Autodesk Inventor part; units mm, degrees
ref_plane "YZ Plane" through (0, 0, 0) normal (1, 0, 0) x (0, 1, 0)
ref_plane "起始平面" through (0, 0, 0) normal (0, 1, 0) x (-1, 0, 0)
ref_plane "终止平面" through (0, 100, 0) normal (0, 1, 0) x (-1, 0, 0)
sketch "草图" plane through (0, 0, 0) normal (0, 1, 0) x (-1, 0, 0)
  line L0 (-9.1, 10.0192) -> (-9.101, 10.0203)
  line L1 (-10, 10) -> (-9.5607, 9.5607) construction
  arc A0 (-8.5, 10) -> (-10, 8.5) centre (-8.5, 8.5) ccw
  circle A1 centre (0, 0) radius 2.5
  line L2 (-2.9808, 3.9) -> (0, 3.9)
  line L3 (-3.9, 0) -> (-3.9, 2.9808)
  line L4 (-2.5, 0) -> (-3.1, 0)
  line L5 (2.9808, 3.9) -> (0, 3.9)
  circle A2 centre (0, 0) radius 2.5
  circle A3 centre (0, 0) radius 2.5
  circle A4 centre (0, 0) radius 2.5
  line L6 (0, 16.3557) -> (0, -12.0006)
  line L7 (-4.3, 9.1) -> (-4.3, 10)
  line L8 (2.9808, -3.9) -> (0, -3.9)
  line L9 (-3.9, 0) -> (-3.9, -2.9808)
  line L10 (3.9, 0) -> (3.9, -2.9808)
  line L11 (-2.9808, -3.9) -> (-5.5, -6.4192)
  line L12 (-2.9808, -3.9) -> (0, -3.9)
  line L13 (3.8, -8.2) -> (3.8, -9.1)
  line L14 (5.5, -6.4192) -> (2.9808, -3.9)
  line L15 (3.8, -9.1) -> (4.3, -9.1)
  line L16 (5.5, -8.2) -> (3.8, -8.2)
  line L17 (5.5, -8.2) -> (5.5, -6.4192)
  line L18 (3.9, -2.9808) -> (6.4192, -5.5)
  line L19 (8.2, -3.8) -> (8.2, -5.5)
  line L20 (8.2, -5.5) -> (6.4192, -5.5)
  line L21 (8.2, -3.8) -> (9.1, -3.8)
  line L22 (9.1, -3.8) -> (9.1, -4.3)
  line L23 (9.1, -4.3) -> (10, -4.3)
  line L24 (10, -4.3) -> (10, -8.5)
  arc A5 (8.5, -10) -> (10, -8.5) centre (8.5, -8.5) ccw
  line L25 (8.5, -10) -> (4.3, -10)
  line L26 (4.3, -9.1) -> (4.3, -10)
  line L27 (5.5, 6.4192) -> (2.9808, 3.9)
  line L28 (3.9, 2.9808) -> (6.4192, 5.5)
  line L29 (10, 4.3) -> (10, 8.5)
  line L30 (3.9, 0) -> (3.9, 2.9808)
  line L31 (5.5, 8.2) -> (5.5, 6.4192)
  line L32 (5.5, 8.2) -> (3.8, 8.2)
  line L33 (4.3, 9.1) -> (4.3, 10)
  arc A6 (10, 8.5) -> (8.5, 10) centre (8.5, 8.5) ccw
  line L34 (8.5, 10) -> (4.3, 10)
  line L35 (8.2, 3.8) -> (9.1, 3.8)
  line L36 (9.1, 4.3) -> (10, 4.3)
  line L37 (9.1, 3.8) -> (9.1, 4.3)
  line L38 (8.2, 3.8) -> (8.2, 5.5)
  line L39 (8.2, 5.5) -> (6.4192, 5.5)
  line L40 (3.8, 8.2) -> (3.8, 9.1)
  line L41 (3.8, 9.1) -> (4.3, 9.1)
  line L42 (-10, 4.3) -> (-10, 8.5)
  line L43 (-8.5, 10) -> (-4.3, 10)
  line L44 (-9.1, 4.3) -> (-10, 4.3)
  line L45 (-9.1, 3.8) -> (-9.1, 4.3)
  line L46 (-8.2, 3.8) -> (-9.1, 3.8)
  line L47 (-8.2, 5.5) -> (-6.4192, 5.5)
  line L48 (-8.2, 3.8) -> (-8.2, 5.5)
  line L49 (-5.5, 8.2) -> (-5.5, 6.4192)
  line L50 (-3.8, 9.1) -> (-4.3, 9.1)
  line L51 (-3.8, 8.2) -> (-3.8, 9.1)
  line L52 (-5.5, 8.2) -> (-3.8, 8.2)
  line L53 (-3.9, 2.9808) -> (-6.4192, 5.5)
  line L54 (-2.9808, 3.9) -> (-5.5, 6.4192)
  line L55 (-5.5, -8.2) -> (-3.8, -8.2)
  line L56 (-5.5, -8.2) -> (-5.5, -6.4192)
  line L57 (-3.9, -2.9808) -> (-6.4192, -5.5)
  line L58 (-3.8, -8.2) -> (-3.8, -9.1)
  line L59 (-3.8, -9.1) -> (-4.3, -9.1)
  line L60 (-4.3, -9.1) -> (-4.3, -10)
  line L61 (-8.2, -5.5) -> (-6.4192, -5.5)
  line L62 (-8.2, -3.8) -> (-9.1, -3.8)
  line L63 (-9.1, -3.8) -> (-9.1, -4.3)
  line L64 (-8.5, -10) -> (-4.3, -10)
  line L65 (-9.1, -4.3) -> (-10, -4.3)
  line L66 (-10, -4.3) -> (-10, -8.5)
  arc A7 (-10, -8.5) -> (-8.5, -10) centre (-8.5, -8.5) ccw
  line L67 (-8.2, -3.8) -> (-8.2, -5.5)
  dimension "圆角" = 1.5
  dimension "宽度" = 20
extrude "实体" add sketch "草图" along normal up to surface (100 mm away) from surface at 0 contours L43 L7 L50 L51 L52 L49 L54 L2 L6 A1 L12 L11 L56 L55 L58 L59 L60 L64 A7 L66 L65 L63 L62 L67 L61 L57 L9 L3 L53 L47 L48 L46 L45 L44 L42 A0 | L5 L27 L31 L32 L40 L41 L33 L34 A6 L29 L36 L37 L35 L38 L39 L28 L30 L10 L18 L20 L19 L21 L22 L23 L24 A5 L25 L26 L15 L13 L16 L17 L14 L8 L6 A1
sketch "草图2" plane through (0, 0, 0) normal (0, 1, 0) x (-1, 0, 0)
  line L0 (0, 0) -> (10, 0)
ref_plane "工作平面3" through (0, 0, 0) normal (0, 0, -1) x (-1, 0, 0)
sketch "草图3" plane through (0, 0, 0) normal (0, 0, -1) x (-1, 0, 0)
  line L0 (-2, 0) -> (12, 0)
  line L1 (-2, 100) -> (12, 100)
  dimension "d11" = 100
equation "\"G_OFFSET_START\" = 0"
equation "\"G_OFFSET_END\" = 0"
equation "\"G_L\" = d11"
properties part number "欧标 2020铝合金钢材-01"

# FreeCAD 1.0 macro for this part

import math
import FreeCAD as App
import Part
import Sketcher

V = App.Vector

doc = App.newDocument("Part")
body = doc.addObject("PartDesign::Body", "Body")

# Sketch on XZ plane
sketch1 = body.newObject("Sketcher::SketchObject", "Sketch")
sketch1.AttachmentSupport = (doc.getObject("XZ_Plane"), [""])
sketch1.MapMode = "FlatFace"
sketch1.addGeometry([
    Part.LineSegment(V(4.3, 10, 0), V(8.5, 10, 0)),  # 0
    Part.ArcOfCircle(Part.Circle(V(8.5, 8.5, 0), V(0, 0, 1), 1.5), math.radians(0), math.radians(90)),  # 1
    Part.LineSegment(V(10, 8.5, 0), V(10, 4.3, 0)),  # 2
    Part.LineSegment(V(10, 4.3, 0), V(9.1, 4.3, 0)),  # 3
    Part.LineSegment(V(9.1, 4.3, 0), V(9.1, 3.8, 0)),  # 4
    Part.LineSegment(V(9.1, 3.8, 0), V(8.2, 3.8, 0)),  # 5
    Part.LineSegment(V(8.2, 3.8, 0), V(8.2, 5.5, 0)),  # 6
    Part.LineSegment(V(8.2, 5.5, 0), V(6.4192, 5.5, 0)),  # 7
    Part.LineSegment(V(6.4192, 5.5, 0), V(3.9, 2.9808, 0)),  # 8
    Part.LineSegment(V(3.9, 2.9808, 0), V(3.9, -2.9808, 0)),  # 9
    Part.LineSegment(V(3.9, -2.9808, 0), V(6.4192, -5.5, 0)),  # 10
    Part.LineSegment(V(6.4192, -5.5, 0), V(8.2, -5.5, 0)),  # 11
    Part.LineSegment(V(8.2, -5.5, 0), V(8.2, -3.8, 0)),  # 12
    Part.LineSegment(V(8.2, -3.8, 0), V(9.1, -3.8, 0)),  # 13
    Part.LineSegment(V(9.1, -3.8, 0), V(9.1, -4.3, 0)),  # 14
    Part.LineSegment(V(9.1, -4.3, 0), V(10, -4.3, 0)),  # 15
    Part.LineSegment(V(10, -4.3, 0), V(10, -8.5, 0)),  # 16
    Part.ArcOfCircle(Part.Circle(V(8.5, -8.5, 0), V(0, 0, 1), 1.5), math.radians(-90), math.radians(0)),  # 17
    Part.LineSegment(V(8.5, -10, 0), V(4.3, -10, 0)),  # 18
    Part.LineSegment(V(4.3, -10, 0), V(4.3, -9.1, 0)),  # 19
    Part.LineSegment(V(4.3, -9.1, 0), V(3.8, -9.1, 0)),  # 20
    Part.LineSegment(V(3.8, -9.1, 0), V(3.8, -8.2, 0)),  # 21
    Part.LineSegment(V(3.8, -8.2, 0), V(5.5, -8.2, 0)),  # 22
    Part.LineSegment(V(5.5, -8.2, 0), V(5.5, -6.4192, 0)),  # 23
    Part.LineSegment(V(5.5, -6.4192, 0), V(2.9808, -3.9, 0)),  # 24
    Part.LineSegment(V(2.9808, -3.9, 0), V(-2.9808, -3.9, 0)),  # 25
    Part.LineSegment(V(-2.9808, -3.9, 0), V(-5.5, -6.4192, 0)),  # 26
    Part.LineSegment(V(-5.5, -6.4192, 0), V(-5.5, -8.2, 0)),  # 27
    Part.LineSegment(V(-5.5, -8.2, 0), V(-3.8, -8.2, 0)),  # 28
    Part.LineSegment(V(-3.8, -8.2, 0), V(-3.8, -9.1, 0)),  # 29
    Part.LineSegment(V(-3.8, -9.1, 0), V(-4.3, -9.1, 0)),  # 30
    Part.LineSegment(V(-4.3, -9.1, 0), V(-4.3, -10, 0)),  # 31
    Part.LineSegment(V(-4.3, -10, 0), V(-8.5, -10, 0)),  # 32
    Part.ArcOfCircle(Part.Circle(V(-8.5, -8.5, 0), V(0, 0, 1), 1.5), math.radians(180), math.radians(270)),  # 33
    Part.LineSegment(V(-10, -8.5, 0), V(-10, -4.3, 0)),  # 34
    Part.LineSegment(V(-10, -4.3, 0), V(-9.1, -4.3, 0)),  # 35
    Part.LineSegment(V(-9.1, -4.3, 0), V(-9.1, -3.8, 0)),  # 36
    Part.LineSegment(V(-9.1, -3.8, 0), V(-8.2, -3.8, 0)),  # 37
    Part.LineSegment(V(-8.2, -3.8, 0), V(-8.2, -5.5, 0)),  # 38
    Part.LineSegment(V(-8.2, -5.5, 0), V(-6.4192, -5.5, 0)),  # 39
    Part.LineSegment(V(-6.4192, -5.5, 0), V(-3.9, -2.9808, 0)),  # 40
    Part.LineSegment(V(-3.9, -2.9808, 0), V(-3.9, 2.9808, 0)),  # 41
    Part.LineSegment(V(-3.9, 2.9808, 0), V(-6.4192, 5.5, 0)),  # 42
    Part.LineSegment(V(-6.4192, 5.5, 0), V(-8.2, 5.5, 0)),  # 43
    Part.LineSegment(V(-8.2, 5.5, 0), V(-8.2, 3.8, 0)),  # 44
    Part.LineSegment(V(-8.2, 3.8, 0), V(-9.1, 3.8, 0)),  # 45
    Part.LineSegment(V(-9.1, 3.8, 0), V(-9.1, 4.3, 0)),  # 46
    Part.LineSegment(V(-9.1, 4.3, 0), V(-10, 4.3, 0)),  # 47
    Part.LineSegment(V(-10, 4.3, 0), V(-10, 8.5, 0)),  # 48
    Part.ArcOfCircle(Part.Circle(V(-8.5, 8.5, 0), V(0, 0, 1), 1.5), math.radians(90), math.radians(180)),  # 49
    Part.LineSegment(V(-8.5, 10, 0), V(-4.3, 10, 0)),  # 50
    Part.LineSegment(V(-4.3, 10, 0), V(-4.3, 9.1, 0)),  # 51
    Part.LineSegment(V(-4.3, 9.1, 0), V(-3.8, 9.1, 0)),  # 52
    Part.LineSegment(V(-3.8, 9.1, 0), V(-3.8, 8.2, 0)),  # 53
    Part.LineSegment(V(-3.8, 8.2, 0), V(-5.5, 8.2, 0)),  # 54
    Part.LineSegment(V(-5.5, 8.2, 0), V(-5.5, 6.4192, 0)),  # 55
    Part.LineSegment(V(-5.5, 6.4192, 0), V(-2.9808, 3.9, 0)),  # 56
    Part.LineSegment(V(-2.9808, 3.9, 0), V(2.9808, 3.9, 0)),  # 57
    Part.LineSegment(V(2.9808, 3.9, 0), V(5.5, 6.4192, 0)),  # 58
    Part.LineSegment(V(5.5, 6.4192, 0), V(5.5, 8.2, 0)),  # 59
    Part.LineSegment(V(5.5, 8.2, 0), V(3.8, 8.2, 0)),  # 60
    Part.LineSegment(V(3.8, 8.2, 0), V(3.8, 9.1, 0)),  # 61
    Part.LineSegment(V(3.8, 9.1, 0), V(4.3, 9.1, 0)),  # 62
    Part.LineSegment(V(4.3, 9.1, 0), V(4.3, 10, 0)),  # 63
    Part.Circle(V(0, 0, 0), V(0, 0, 1), 2.5),  # 64
], False)
sketch1.addConstraint([
    Sketcher.Constraint("Tangent", 0, 2, 1, 2),
    Sketcher.Constraint("Tangent", 1, 1, 2, 1),
    Sketcher.Constraint("Coincident", 2, 2, 3, 1),
    Sketcher.Constraint("Coincident", 3, 2, 4, 1),
    Sketcher.Constraint("Coincident", 4, 2, 5, 1),
    Sketcher.Constraint("Coincident", 5, 2, 6, 1),
    Sketcher.Constraint("Coincident", 6, 2, 7, 1),
    Sketcher.Constraint("Coincident", 7, 2, 8, 1),
    Sketcher.Constraint("Coincident", 8, 2, 9, 1),
    Sketcher.Constraint("Coincident", 9, 2, 10, 1),
    Sketcher.Constraint("Coincident", 10, 2, 11, 1),
    Sketcher.Constraint("Coincident", 11, 2, 12, 1),
    Sketcher.Constraint("Coincident", 12, 2, 13, 1),
    Sketcher.Constraint("Coincident", 13, 2, 14, 1),
    Sketcher.Constraint("Coincident", 14, 2, 15, 1),
    Sketcher.Constraint("Coincident", 15, 2, 16, 1),
    Sketcher.Constraint("Tangent", 16, 2, 17, 2),
    Sketcher.Constraint("Tangent", 17, 1, 18, 1),
    Sketcher.Constraint("Coincident", 18, 2, 19, 1),
    Sketcher.Constraint("Coincident", 19, 2, 20, 1),
    Sketcher.Constraint("Coincident", 20, 2, 21, 1),
    Sketcher.Constraint("Coincident", 21, 2, 22, 1),
    Sketcher.Constraint("Coincident", 22, 2, 23, 1),
    Sketcher.Constraint("Coincident", 23, 2, 24, 1),
    Sketcher.Constraint("Coincident", 24, 2, 25, 1),
    Sketcher.Constraint("Coincident", 25, 2, 26, 1),
    Sketcher.Constraint("Coincident", 26, 2, 27, 1),
    Sketcher.Constraint("Coincident", 27, 2, 28, 1),
    Sketcher.Constraint("Coincident", 28, 2, 29, 1),
    Sketcher.Constraint("Coincident", 29, 2, 30, 1),
    Sketcher.Constraint("Coincident", 30, 2, 31, 1),
    Sketcher.Constraint("Coincident", 31, 2, 32, 1),
    Sketcher.Constraint("Tangent", 32, 2, 33, 2),
    Sketcher.Constraint("Tangent", 33, 1, 34, 1),
    Sketcher.Constraint("Coincident", 34, 2, 35, 1),
    Sketcher.Constraint("Coincident", 35, 2, 36, 1),
    Sketcher.Constraint("Coincident", 36, 2, 37, 1),
    Sketcher.Constraint("Coincident", 37, 2, 38, 1),
    Sketcher.Constraint("Coincident", 38, 2, 39, 1),
    Sketcher.Constraint("Coincident", 39, 2, 40, 1),
    Sketcher.Constraint("Coincident", 40, 2, 41, 1),
    Sketcher.Constraint("Coincident", 41, 2, 42, 1),
    Sketcher.Constraint("Coincident", 42, 2, 43, 1),
    Sketcher.Constraint("Coincident", 43, 2, 44, 1),
    Sketcher.Constraint("Coincident", 44, 2, 45, 1),
    Sketcher.Constraint("Coincident", 45, 2, 46, 1),
    Sketcher.Constraint("Coincident", 46, 2, 47, 1),
    Sketcher.Constraint("Coincident", 47, 2, 48, 1),
    Sketcher.Constraint("Tangent", 48, 2, 49, 2),
    Sketcher.Constraint("Tangent", 49, 1, 50, 1),
    Sketcher.Constraint("Coincident", 50, 2, 51, 1),
    Sketcher.Constraint("Coincident", 51, 2, 52, 1),
    Sketcher.Constraint("Coincident", 52, 2, 53, 1),
    Sketcher.Constraint("Coincident", 53, 2, 54, 1),
    Sketcher.Constraint("Coincident", 54, 2, 55, 1),
    Sketcher.Constraint("Coincident", 55, 2, 56, 1),
    Sketcher.Constraint("Coincident", 56, 2, 57, 1),
    Sketcher.Constraint("Coincident", 57, 2, 58, 1),
    Sketcher.Constraint("Coincident", 58, 2, 59, 1),
    Sketcher.Constraint("Coincident", 59, 2, 60, 1),
    Sketcher.Constraint("Coincident", 60, 2, 61, 1),
    Sketcher.Constraint("Coincident", 61, 2, 62, 1),
    Sketcher.Constraint("Coincident", 62, 2, 63, 1),
    Sketcher.Constraint("Coincident", 63, 2, 0, 1),
    Sketcher.Constraint("Horizontal", 0),
    Sketcher.Constraint("Vertical", 2),
    Sketcher.Constraint("Horizontal", 3),
    Sketcher.Constraint("Vertical", 4),
    Sketcher.Constraint("Horizontal", 5),
    Sketcher.Constraint("Vertical", 6),
    Sketcher.Constraint("Horizontal", 7),
    Sketcher.Constraint("Vertical", 9),
    Sketcher.Constraint("Horizontal", 11),
    Sketcher.Constraint("Vertical", 12),
    Sketcher.Constraint("Horizontal", 13),
    Sketcher.Constraint("Vertical", 14),
    Sketcher.Constraint("Horizontal", 15),
    Sketcher.Constraint("Vertical", 16),
    Sketcher.Constraint("Horizontal", 18),
    Sketcher.Constraint("Vertical", 19),
    Sketcher.Constraint("Horizontal", 20),
    Sketcher.Constraint("Vertical", 21),
    Sketcher.Constraint("Horizontal", 22),
    Sketcher.Constraint("Vertical", 23),
    Sketcher.Constraint("Horizontal", 25),
    Sketcher.Constraint("Vertical", 27),
    Sketcher.Constraint("Horizontal", 28),
    Sketcher.Constraint("Vertical", 29),
    Sketcher.Constraint("Horizontal", 30),
    Sketcher.Constraint("Vertical", 31),
    Sketcher.Constraint("Horizontal", 32),
    Sketcher.Constraint("Vertical", 34),
    Sketcher.Constraint("Horizontal", 35),
    Sketcher.Constraint("Vertical", 36),
    Sketcher.Constraint("Horizontal", 37),
    Sketcher.Constraint("Vertical", 38),
    Sketcher.Constraint("Horizontal", 39),
    Sketcher.Constraint("Vertical", 41),
    Sketcher.Constraint("Horizontal", 43),
    Sketcher.Constraint("Vertical", 44),
    Sketcher.Constraint("Horizontal", 45),
    Sketcher.Constraint("Vertical", 46),
    Sketcher.Constraint("Horizontal", 47),
    Sketcher.Constraint("Vertical", 48),
    Sketcher.Constraint("Horizontal", 50),
    Sketcher.Constraint("Vertical", 51),
    Sketcher.Constraint("Horizontal", 52),
    Sketcher.Constraint("Vertical", 53),
    Sketcher.Constraint("Horizontal", 54),
    Sketcher.Constraint("Vertical", 55),
    Sketcher.Constraint("Horizontal", 57),
    Sketcher.Constraint("Vertical", 59),
    Sketcher.Constraint("Horizontal", 60),
    Sketcher.Constraint("Vertical", 61),
    Sketcher.Constraint("Horizontal", 62),
    Sketcher.Constraint("Vertical", 63),
    Sketcher.Constraint("Coincident", 64, 3, -1, 1),
    Sketcher.Constraint("Equal", 1, 17),
    Sketcher.Constraint("Equal", 17, 33),
    Sketcher.Constraint("Equal", 33, 49),
    Sketcher.Constraint("Symmetric", 1, 3, 33, 3, -1, 1),
    Sketcher.Constraint("Symmetric", 17, 3, 49, 3, -1, 1),
    Sketcher.Constraint("Symmetric", 3, 2, 35, 2, -1, 1),
    Sketcher.Constraint("Symmetric", 5, 2, 37, 2, -1, 1),
    Sketcher.Constraint("Symmetric", 7, 2, 39, 2, -1, 1),
    Sketcher.Constraint("Symmetric", 8, 2, 40, 2, -1, 1),
    Sketcher.Constraint("Symmetric", 10, 2, 42, 2, -1, 1),
    Sketcher.Constraint("Symmetric", 12, 2, 44, 2, -1, 1),
    Sketcher.Constraint("Symmetric", 14, 2, 46, 2, -1, 1),
    Sketcher.Constraint("Symmetric", 19, 2, 51, 2, -1, 1),
    Sketcher.Constraint("Symmetric", 21, 2, 53, 2, -1, 1),
    Sketcher.Constraint("Symmetric", 23, 2, 55, 2, -1, 1),
    Sketcher.Constraint("Symmetric", 24, 2, 56, 2, -1, 1),
    Sketcher.Constraint("Symmetric", 26, 2, 58, 2, -1, 1),
    Sketcher.Constraint("Symmetric", 28, 2, 60, 2, -1, 1),
    Sketcher.Constraint("Symmetric", 30, 2, 62, 2, -1, 1),
    Sketcher.Constraint("Symmetric", 17, 3, 33, 3, -2),
    Sketcher.Constraint("Symmetric", 23, 2, 26, 2, -2),
    Sketcher.Constraint("Symmetric", 21, 2, 28, 2, -2),
    Sketcher.Constraint("Symmetric", 19, 2, 30, 2, -2),
    Sketcher.Constraint("Symmetric", 14, 2, 35, 2, -2),
    Sketcher.Constraint("Symmetric", 12, 2, 37, 2, -2),
    Sketcher.Constraint("Symmetric", 10, 2, 39, 2, -2),
    Sketcher.Constraint("Perpendicular", 8, 10),
    Sketcher.Constraint("Parallel", 10, 24),
    Sketcher.Constraint("Perpendicular", 24, 26),
    Sketcher.Constraint("Perpendicular", 40, 42),
    Sketcher.Constraint("Perpendicular", 56, 58),
    Sketcher.Constraint("Horizontal", 9, 2, 40, 2),
    Sketcher.Constraint("Equal", 3, 5),
    Sketcher.Constraint("Equal", 50, 2),
    Sketcher.Constraint("Equal", 62, 4),
    Sketcher.Constraint("Equal", 60, 6),
    Sketcher.Constraint("Equal", 57, 9),
    Sketcher.Constraint("Equal", 47, 19),
    Sketcher.Constraint("Equal", 19, 21),
    Sketcher.Constraint("Equal", 43, 23),
    Sketcher.Constraint("Equal", 10, 24),
    Sketcher.Constraint("Radius", 1, 1.5),
    Sketcher.Constraint("Diameter", 64, 5.0),
    Sketcher.Constraint("DistanceX", 0, 1, 0, 2, 4.2),
    Sketcher.Constraint("DistanceX", 3, 2, 3, 1, 0.9),
    Sketcher.Constraint("DistanceX", 20, 2, 20, 1, 0.5),
    Sketcher.Constraint("DistanceX", 22, 1, 22, 2, 1.7),
    Sketcher.Constraint("DistanceY", -1, 1, 0, 2, 10.0),
    Sketcher.Constraint("DistanceX", -1, 1, 8, 2, 3.9),
    Sketcher.Constraint("DistanceX", 7, 2, 7, 1, 1.7808),
])
pad1 = body.newObject("PartDesign::Pad", "Pad")
pad1.Profile = sketch1
pad1.Length = 100
pad1.Reversed = True

doc.recompute()
